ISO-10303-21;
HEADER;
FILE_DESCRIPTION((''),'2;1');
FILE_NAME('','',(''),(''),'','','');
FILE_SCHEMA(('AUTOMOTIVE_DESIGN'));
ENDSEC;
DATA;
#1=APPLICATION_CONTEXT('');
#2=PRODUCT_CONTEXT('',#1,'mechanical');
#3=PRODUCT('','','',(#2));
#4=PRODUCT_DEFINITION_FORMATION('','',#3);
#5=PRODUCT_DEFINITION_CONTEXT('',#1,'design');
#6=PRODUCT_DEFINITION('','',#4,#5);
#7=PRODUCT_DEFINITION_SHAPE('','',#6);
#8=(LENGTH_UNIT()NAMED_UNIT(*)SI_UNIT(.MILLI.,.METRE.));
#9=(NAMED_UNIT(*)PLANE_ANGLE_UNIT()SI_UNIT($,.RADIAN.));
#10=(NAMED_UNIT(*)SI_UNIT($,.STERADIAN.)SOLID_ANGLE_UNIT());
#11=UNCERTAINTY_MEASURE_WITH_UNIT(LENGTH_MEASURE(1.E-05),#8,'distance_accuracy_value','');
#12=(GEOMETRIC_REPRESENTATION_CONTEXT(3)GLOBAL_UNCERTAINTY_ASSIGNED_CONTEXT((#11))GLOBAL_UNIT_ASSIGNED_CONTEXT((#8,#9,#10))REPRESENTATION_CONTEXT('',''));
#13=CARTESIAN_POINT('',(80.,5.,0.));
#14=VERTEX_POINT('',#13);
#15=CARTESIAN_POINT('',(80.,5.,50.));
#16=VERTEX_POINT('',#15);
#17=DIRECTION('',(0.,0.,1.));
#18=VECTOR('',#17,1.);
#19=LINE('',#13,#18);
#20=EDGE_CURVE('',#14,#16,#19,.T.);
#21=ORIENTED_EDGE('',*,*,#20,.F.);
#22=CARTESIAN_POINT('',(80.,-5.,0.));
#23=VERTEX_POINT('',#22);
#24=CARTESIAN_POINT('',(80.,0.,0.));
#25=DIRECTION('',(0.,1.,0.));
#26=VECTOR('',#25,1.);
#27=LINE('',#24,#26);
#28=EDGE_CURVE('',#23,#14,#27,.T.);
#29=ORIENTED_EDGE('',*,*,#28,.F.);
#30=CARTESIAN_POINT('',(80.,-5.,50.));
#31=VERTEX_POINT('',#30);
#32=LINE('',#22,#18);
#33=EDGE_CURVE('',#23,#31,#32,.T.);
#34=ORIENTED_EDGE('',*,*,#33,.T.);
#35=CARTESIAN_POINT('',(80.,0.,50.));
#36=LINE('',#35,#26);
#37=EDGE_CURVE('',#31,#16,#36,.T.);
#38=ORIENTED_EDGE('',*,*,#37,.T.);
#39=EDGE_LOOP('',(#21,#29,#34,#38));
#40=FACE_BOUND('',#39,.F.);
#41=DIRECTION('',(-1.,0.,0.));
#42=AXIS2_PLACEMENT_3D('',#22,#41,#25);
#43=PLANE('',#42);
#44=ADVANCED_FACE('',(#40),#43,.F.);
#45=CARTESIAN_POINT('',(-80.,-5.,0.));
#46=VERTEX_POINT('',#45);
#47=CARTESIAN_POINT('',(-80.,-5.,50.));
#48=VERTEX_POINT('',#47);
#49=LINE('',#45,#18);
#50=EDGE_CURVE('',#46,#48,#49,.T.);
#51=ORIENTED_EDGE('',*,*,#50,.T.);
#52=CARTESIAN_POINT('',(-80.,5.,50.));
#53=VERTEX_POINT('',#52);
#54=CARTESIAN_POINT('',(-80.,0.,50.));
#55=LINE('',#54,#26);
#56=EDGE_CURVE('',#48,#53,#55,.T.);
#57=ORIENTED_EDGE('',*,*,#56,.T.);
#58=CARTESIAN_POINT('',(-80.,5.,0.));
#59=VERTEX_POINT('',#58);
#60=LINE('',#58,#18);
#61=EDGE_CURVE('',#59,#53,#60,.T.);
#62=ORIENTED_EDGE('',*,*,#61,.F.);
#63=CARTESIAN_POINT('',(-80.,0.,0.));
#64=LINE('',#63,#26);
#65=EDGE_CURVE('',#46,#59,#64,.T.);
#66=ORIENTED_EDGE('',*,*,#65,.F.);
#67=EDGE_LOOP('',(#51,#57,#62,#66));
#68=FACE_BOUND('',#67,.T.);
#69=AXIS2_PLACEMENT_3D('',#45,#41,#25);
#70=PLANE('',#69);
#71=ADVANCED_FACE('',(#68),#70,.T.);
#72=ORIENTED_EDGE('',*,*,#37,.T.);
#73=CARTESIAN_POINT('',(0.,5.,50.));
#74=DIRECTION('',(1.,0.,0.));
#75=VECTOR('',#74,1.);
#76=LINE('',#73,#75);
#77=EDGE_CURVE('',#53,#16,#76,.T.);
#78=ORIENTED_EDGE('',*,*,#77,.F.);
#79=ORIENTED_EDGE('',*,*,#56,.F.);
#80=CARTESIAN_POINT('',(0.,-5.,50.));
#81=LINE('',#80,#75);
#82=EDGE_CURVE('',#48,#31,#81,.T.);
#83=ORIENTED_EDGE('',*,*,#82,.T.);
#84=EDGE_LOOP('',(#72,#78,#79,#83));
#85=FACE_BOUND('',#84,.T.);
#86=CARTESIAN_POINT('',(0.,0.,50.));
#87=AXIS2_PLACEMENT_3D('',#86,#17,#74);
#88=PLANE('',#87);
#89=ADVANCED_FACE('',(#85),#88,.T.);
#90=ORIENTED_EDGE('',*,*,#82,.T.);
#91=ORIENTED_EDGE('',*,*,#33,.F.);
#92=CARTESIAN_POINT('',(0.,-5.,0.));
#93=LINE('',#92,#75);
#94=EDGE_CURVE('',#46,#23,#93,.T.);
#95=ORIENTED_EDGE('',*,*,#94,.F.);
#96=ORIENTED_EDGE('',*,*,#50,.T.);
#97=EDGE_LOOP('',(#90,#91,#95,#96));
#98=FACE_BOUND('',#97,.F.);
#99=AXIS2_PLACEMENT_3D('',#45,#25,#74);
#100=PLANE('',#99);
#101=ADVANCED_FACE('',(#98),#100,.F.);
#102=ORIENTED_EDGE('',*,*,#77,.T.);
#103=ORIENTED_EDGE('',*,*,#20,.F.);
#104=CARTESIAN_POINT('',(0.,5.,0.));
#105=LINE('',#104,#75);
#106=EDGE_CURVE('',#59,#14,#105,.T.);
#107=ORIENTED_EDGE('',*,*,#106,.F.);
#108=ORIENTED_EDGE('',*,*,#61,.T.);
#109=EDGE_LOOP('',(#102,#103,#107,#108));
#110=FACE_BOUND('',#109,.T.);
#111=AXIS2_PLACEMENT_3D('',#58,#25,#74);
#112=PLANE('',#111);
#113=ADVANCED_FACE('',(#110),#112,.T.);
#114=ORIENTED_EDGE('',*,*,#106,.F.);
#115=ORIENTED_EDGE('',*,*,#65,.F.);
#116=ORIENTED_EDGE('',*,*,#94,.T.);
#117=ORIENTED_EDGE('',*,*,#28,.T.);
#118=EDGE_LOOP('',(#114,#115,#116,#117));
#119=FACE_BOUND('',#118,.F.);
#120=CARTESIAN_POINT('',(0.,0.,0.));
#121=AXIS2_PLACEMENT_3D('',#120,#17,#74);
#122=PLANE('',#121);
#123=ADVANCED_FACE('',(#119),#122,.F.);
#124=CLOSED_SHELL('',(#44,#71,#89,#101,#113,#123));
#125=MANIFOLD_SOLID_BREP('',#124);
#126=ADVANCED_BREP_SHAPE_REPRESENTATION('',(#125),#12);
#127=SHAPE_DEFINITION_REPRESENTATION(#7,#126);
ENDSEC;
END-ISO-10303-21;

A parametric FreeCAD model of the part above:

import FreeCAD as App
import Part
import Sketcher


def add_polygon(sketch, points):
    """Adds a closed chain of lines whose ends are joined by coincident constraints."""
    first, n = sketch.GeometryCount, len(points)
    for a, b in zip(points, points[1:] + points[:1]):
        sketch.addGeometry(Part.LineSegment(App.Vector(*a, 0), App.Vector(*b, 0)), False)
    for i in range(n):
        sketch.addConstraint(Sketcher.Constraint("Coincident", first + i, 2, first + (i + 1) % n, 1))

doc = App.newDocument("Part")
body = doc.addObject("PartDesign::Body", "Body")

# Sketch on XY plane
sketch1 = doc.addObject("Sketcher::SketchObject", "Sketch")
body.addObject(sketch1)
sketch1.AttachmentSupport = (doc.XY_Plane, [""])
sketch1.MapMode = "FlatFace"
add_polygon(sketch1, [(-80, 5), (-80, -5), (80, -5), (80, 5)])  # lines 0-3
sketch1.addConstraint([
    Sketcher.Constraint("Vertical", 0),
    Sketcher.Constraint("Horizontal", 1),
    Sketcher.Constraint("Vertical", 2),
    Sketcher.Constraint("Horizontal", 3),
    Sketcher.Constraint("Symmetric", 0, 2, 2, 2, -1, 1),
    Sketcher.Constraint("DistanceX", 1, 1, 1, 2, 160.0),
    Sketcher.Constraint("DistanceY", 0, 2, 0, 1, 10.0),
])
pad1 = doc.addObject("PartDesign::Pad", "Pad")
body.addObject(pad1)
pad1.Profile = sketch1
pad1.Length = 50

doc.recompute()
